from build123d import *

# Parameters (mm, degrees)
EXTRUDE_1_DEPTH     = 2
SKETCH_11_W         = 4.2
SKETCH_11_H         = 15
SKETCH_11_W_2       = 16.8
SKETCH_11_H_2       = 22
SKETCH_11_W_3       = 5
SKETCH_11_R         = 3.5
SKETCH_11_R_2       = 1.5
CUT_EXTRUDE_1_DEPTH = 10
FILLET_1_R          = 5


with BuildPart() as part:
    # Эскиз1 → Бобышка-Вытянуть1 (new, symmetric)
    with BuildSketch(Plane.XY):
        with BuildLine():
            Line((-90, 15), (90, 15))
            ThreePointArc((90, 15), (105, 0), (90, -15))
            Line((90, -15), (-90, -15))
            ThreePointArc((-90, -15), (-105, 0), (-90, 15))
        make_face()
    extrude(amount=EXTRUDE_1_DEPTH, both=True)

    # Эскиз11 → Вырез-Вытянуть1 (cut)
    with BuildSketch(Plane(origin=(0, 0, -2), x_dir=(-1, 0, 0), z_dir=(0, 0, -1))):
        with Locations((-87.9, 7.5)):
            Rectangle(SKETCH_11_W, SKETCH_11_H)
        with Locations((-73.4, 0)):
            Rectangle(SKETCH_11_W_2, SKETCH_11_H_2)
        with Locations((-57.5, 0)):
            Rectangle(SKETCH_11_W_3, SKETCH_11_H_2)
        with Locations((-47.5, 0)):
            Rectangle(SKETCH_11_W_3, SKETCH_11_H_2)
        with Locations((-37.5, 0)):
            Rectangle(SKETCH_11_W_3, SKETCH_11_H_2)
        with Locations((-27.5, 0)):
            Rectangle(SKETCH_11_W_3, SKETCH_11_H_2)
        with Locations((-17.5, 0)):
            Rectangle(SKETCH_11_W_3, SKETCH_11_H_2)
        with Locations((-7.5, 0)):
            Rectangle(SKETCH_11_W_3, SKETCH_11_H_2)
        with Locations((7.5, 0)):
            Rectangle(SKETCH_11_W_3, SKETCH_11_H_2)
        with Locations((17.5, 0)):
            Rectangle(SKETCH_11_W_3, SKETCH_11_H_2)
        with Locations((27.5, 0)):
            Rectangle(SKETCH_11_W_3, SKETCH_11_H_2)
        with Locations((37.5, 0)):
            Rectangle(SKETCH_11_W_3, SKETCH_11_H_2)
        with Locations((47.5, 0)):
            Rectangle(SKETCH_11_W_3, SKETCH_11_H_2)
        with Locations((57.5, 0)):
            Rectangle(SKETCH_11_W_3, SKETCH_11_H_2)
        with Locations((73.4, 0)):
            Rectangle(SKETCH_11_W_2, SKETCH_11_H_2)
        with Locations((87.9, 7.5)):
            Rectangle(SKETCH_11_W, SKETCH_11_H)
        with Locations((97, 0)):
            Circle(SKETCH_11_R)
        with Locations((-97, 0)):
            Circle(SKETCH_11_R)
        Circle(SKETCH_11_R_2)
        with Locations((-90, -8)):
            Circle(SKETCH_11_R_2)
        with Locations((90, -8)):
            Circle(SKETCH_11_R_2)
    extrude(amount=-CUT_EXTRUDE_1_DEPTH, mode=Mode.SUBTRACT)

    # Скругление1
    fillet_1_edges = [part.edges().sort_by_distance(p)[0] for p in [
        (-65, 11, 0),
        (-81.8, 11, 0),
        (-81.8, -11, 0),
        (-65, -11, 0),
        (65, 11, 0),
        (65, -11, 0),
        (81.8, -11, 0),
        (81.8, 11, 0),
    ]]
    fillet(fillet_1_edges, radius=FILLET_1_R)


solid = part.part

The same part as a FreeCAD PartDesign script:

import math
import FreeCAD as App
import Part
import Sketcher
from FreeCAD import Vector


def edges_at(feature, points):
    """Names of the edges that pass closest to the given points."""
    edges = feature.Shape.Edges
    near = lambda p: min(range(len(edges)), key=lambda i: edges[i].distToShape(Part.Vertex(*p))[0])
    return sorted({f"Edge{near(p) + 1}" for p in points})

doc = App.newDocument("Part")
body = doc.addObject("PartDesign::Body", "Body")

# Sketch on XY plane
sketch1 = body.newObject("Sketcher::SketchObject", "Sketch")
sketch1.AttachmentSupport = (doc.getObject("XY_Plane"), [""])
sketch1.MapMode = "FlatFace"
sketch1.addGeometry([
    Part.LineSegment(Vector(90, 15, 0), Vector(-90, 15, 0)),
    Part.ArcOfCircle(Part.Circle(Vector(-90, 0, 0), Vector(0, 0, 1), 15), math.radians(90), math.radians(270)),
    Part.LineSegment(Vector(-90, -15, 0), Vector(90, -15, 0)),
    Part.ArcOfCircle(Part.Circle(Vector(90, 0, 0), Vector(0, 0, 1), 15), math.radians(-90), math.radians(90)),
], False)
sketch1.addConstraint([
    Sketcher.Constraint("Tangent", 0, 2, 1, 1),
    Sketcher.Constraint("Tangent", 1, 2, 2, 1),
    Sketcher.Constraint("Tangent", 2, 2, 3, 1),
    Sketcher.Constraint("Tangent", 3, 2, 0, 1),
    Sketcher.Constraint("Horizontal", 0),
    Sketcher.Constraint("Horizontal", 2),
    Sketcher.Constraint("Symmetric", 1, 3, 3, 3, -1, 1),
    Sketcher.Constraint("Radius", 1, 15.0),
    Sketcher.Constraint("DistanceX", 0, 2, 0, 1, 180.0),
])
pad1 = body.newObject("PartDesign::Pad", "Pad")
pad1.Profile = sketch1
pad1.Length = 4
pad1.Midplane = True

# Sketch on XY plane
sketch2 = body.newObject("Sketcher::SketchObject", "Sketch001")
sketch2.AttachmentSupport = (doc.getObject("XY_Plane"), [""])
sketch2.MapMode = "FlatFace"
sketch2.AttachmentOffset = App.Placement(Vector(0, 0, -2), App.Rotation())
sketch2.addGeometry([
    Part.LineSegment(Vector(90, 15, 0), Vector(90, 0, 0)),  # 0
    Part.LineSegment(Vector(90, 0, 0), Vector(85.8, 0, 0)),  # 1
    Part.LineSegment(Vector(85.8, 0, 0), Vector(85.8, 15, 0)),  # 2
    Part.LineSegment(Vector(85.8, 15, 0), Vector(90, 15, 0)),  # 3
    Part.LineSegment(Vector(81.8, 11, 0), Vector(81.8, -11, 0)),  # 4
    Part.LineSegment(Vector(81.8, -11, 0), Vector(65, -11, 0)),  # 5
    Part.LineSegment(Vector(65, -11, 0), Vector(65, 11, 0)),  # 6
    Part.LineSegment(Vector(65, 11, 0), Vector(81.8, 11, 0)),  # 7
    Part.LineSegment(Vector(60, 11, 0), Vector(60, -11, 0)),  # 8
    Part.LineSegment(Vector(60, -11, 0), Vector(55, -11, 0)),  # 9
    Part.LineSegment(Vector(55, -11, 0), Vector(55, 11, 0)),  # 10
    Part.LineSegment(Vector(55, 11, 0), Vector(60, 11, 0)),  # 11
    Part.LineSegment(Vector(50, 11, 0), Vector(50, -11, 0)),  # 12
    Part.LineSegment(Vector(50, -11, 0), Vector(45, -11, 0)),  # 13
    Part.LineSegment(Vector(45, -11, 0), Vector(45, 11, 0)),  # 14
    Part.LineSegment(Vector(45, 11, 0), Vector(50, 11, 0)),  # 15
    Part.LineSegment(Vector(40, 11, 0), Vector(40, -11, 0)),  # 16
    Part.LineSegment(Vector(40, -11, 0), Vector(35, -11, 0)),  # 17
    Part.LineSegment(Vector(35, -11, 0), Vector(35, 11, 0)),  # 18
    Part.LineSegment(Vector(35, 11, 0), Vector(40, 11, 0)),  # 19
    Part.LineSegment(Vector(30, 11, 0), Vector(30, -11, 0)),  # 20
    Part.LineSegment(Vector(30, -11, 0), Vector(25, -11, 0)),  # 21
    Part.LineSegment(Vector(25, -11, 0), Vector(25, 11, 0)),  # 22
    Part.LineSegment(Vector(25, 11, 0), Vector(30, 11, 0)),  # 23
    Part.LineSegment(Vector(20, 11, 0), Vector(20, -11, 0)),  # 24
    Part.LineSegment(Vector(20, -11, 0), Vector(15, -11, 0)),  # 25
    Part.LineSegment(Vector(15, -11, 0), Vector(15, 11, 0)),  # 26
    Part.LineSegment(Vector(15, 11, 0), Vector(20, 11, 0)),  # 27
    Part.LineSegment(Vector(10, 11, 0), Vector(10, -11, 0)),  # 28
    Part.LineSegment(Vector(10, -11, 0), Vector(5, -11, 0)),  # 29
    Part.LineSegment(Vector(5, -11, 0), Vector(5, 11, 0)),  # 30
    Part.LineSegment(Vector(5, 11, 0), Vector(10, 11, 0)),  # 31
    Part.LineSegment(Vector(-5, 11, 0), Vector(-5, -11, 0)),  # 32
    Part.LineSegment(Vector(-5, -11, 0), Vector(-10, -11, 0)),  # 33
    Part.LineSegment(Vector(-10, -11, 0), Vector(-10, 11, 0)),  # 34
    Part.LineSegment(Vector(-10, 11, 0), Vector(-5, 11, 0)),  # 35
    Part.LineSegment(Vector(-15, 11, 0), Vector(-15, -11, 0)),  # 36
    Part.LineSegment(Vector(-15, -11, 0), Vector(-20, -11, 0)),  # 37
    Part.LineSegment(Vector(-20, -11, 0), Vector(-20, 11, 0)),  # 38
    Part.LineSegment(Vector(-20, 11, 0), Vector(-15, 11, 0)),  # 39
    Part.LineSegment(Vector(-25, 11, 0), Vector(-25, -11, 0)),  # 40
    Part.LineSegment(Vector(-25, -11, 0), Vector(-30, -11, 0)),  # 41
    Part.LineSegment(Vector(-30, -11, 0), Vector(-30, 11, 0)),  # 42
    Part.LineSegment(Vector(-30, 11, 0), Vector(-25, 11, 0)),  # 43
    Part.LineSegment(Vector(-35, 11, 0), Vector(-35, -11, 0)),  # 44
    Part.LineSegment(Vector(-35, -11, 0), Vector(-40, -11, 0)),  # 45
    Part.LineSegment(Vector(-40, -11, 0), Vector(-40, 11, 0)),  # 46
    Part.LineSegment(Vector(-40, 11, 0), Vector(-35, 11, 0)),  # 47
    Part.LineSegment(Vector(-45, 11, 0), Vector(-45, -11, 0)),  # 48
    Part.LineSegment(Vector(-45, -11, 0), Vector(-50, -11, 0)),  # 49
    Part.LineSegment(Vector(-50, -11, 0), Vector(-50, 11, 0)),  # 50
    Part.LineSegment(Vector(-50, 11, 0), Vector(-45, 11, 0)),  # 51
    Part.LineSegment(Vector(-55, 11, 0), Vector(-55, -11, 0)),  # 52
    Part.LineSegment(Vector(-55, -11, 0), Vector(-60, -11, 0)),  # 53
    Part.LineSegment(Vector(-60, -11, 0), Vector(-60, 11, 0)),  # 54
    Part.LineSegment(Vector(-60, 11, 0), Vector(-55, 11, 0)),  # 55
    Part.LineSegment(Vector(-65, 11, 0), Vector(-65, -11, 0)),  # 56
    Part.LineSegment(Vector(-65, -11, 0), Vector(-81.8, -11, 0)),  # 57
    Part.LineSegment(Vector(-81.8, -11, 0), Vector(-81.8, 11, 0)),  # 58
    Part.LineSegment(Vector(-81.8, 11, 0), Vector(-65, 11, 0)),  # 59
    Part.LineSegment(Vector(-85.8, 15, 0), Vector(-85.8, 0, 0)),  # 60
    Part.LineSegment(Vector(-85.8, 0, 0), Vector(-90, 0, 0)),  # 61
    Part.LineSegment(Vector(-90, 0, 0), Vector(-90, 15, 0)),  # 62
    Part.LineSegment(Vector(-90, 15, 0), Vector(-85.8, 15, 0)),  # 63
    Part.Circle(Vector(-97, 0, 0), Vector(0, 0, 1), 3.5),  # 64
    Part.Circle(Vector(97, 0, 0), Vector(0, 0, 1), 3.5),  # 65
    Part.Circle(Vector(0, 0, 0), Vector(0, 0, 1), 1.5),  # 66
    Part.Circle(Vector(90, -8, 0), Vector(0, 0, 1), 1.5),  # 67
    Part.Circle(Vector(-90, -8, 0), Vector(0, 0, 1), 1.5),  # 68
], False)
sketch2.addConstraint([
    Sketcher.Constraint("Coincident", 0, 2, 1, 1),
    Sketcher.Constraint("Coincident", 1, 2, 2, 1),
    Sketcher.Constraint("Coincident", 2, 2, 3, 1),
    Sketcher.Constraint("Coincident", 3, 2, 0, 1),
    Sketcher.Constraint("Coincident", 4, 2, 5, 1),
    Sketcher.Constraint("Coincident", 5, 2, 6, 1),
    Sketcher.Constraint("Coincident", 6, 2, 7, 1),
    Sketcher.Constraint("Coincident", 7, 2, 4, 1),
    Sketcher.Constraint("Coincident", 8, 2, 9, 1),
    Sketcher.Constraint("Coincident", 9, 2, 10, 1),
    Sketcher.Constraint("Coincident", 10, 2, 11, 1),
    Sketcher.Constraint("Coincident", 11, 2, 8, 1),
    Sketcher.Constraint("Coincident", 12, 2, 13, 1),
    Sketcher.Constraint("Coincident", 13, 2, 14, 1),
    Sketcher.Constraint("Coincident", 14, 2, 15, 1),
    Sketcher.Constraint("Coincident", 15, 2, 12, 1),
    Sketcher.Constraint("Coincident", 16, 2, 17, 1),
    Sketcher.Constraint("Coincident", 17, 2, 18, 1),
    Sketcher.Constraint("Coincident", 18, 2, 19, 1),
    Sketcher.Constraint("Coincident", 19, 2, 16, 1),
    Sketcher.Constraint("Coincident", 20, 2, 21, 1),
    Sketcher.Constraint("Coincident", 21, 2, 22, 1),
    Sketcher.Constraint("Coincident", 22, 2, 23, 1),
    Sketcher.Constraint("Coincident", 23, 2, 20, 1),
    Sketcher.Constraint("Coincident", 24, 2, 25, 1),
    Sketcher.Constraint("Coincident", 25, 2, 26, 1),
    Sketcher.Constraint("Coincident", 26, 2, 27, 1),
    Sketcher.Constraint("Coincident", 27, 2, 24, 1),
    Sketcher.Constraint("Coincident", 28, 2, 29, 1),
    Sketcher.Constraint("Coincident", 29, 2, 30, 1),
    Sketcher.Constraint("Coincident", 30, 2, 31, 1),
    Sketcher.Constraint("Coincident", 31, 2, 28, 1),
    Sketcher.Constraint("Coincident", 32, 2, 33, 1),
    Sketcher.Constraint("Coincident", 33, 2, 34, 1),
    Sketcher.Constraint("Coincident", 34, 2, 35, 1),
    Sketcher.Constraint("Coincident", 35, 2, 32, 1),
    Sketcher.Constraint("Coincident", 36, 2, 37, 1),
    Sketcher.Constraint("Coincident", 37, 2, 38, 1),
    Sketcher.Constraint("Coincident", 38, 2, 39, 1),
    Sketcher.Constraint("Coincident", 39, 2, 36, 1),
    Sketcher.Constraint("Coincident", 40, 2, 41, 1),
    Sketcher.Constraint("Coincident", 41, 2, 42, 1),
    Sketcher.Constraint("Coincident", 42, 2, 43, 1),
    Sketcher.Constraint("Coincident", 43, 2, 40, 1),
    Sketcher.Constraint("Coincident", 44, 2, 45, 1),
    Sketcher.Constraint("Coincident", 45, 2, 46, 1),
    Sketcher.Constraint("Coincident", 46, 2, 47, 1),
    Sketcher.Constraint("Coincident", 47, 2, 44, 1),
    Sketcher.Constraint("Coincident", 48, 2, 49, 1),
    Sketcher.Constraint("Coincident", 49, 2, 50, 1),
    Sketcher.Constraint("Coincident", 50, 2, 51, 1),
    Sketcher.Constraint("Coincident", 51, 2, 48, 1),
    Sketcher.Constraint("Coincident", 52, 2, 53, 1),
    Sketcher.Constraint("Coincident", 53, 2, 54, 1),
    Sketcher.Constraint("Coincident", 54, 2, 55, 1),
    Sketcher.Constraint("Coincident", 55, 2, 52, 1),
    Sketcher.Constraint("Coincident", 56, 2, 57, 1),
    Sketcher.Constraint("Coincident", 57, 2, 58, 1),
    Sketcher.Constraint("Coincident", 58, 2, 59, 1),
    Sketcher.Constraint("Coincident", 59, 2, 56, 1),
    Sketcher.Constraint("Coincident", 60, 2, 61, 1),
    Sketcher.Constraint("Coincident", 61, 2, 62, 1),
    Sketcher.Constraint("Coincident", 62, 2, 63, 1),
    Sketcher.Constraint("Coincident", 63, 2, 60, 1),
    Sketcher.Constraint("Vertical", 0),
    Sketcher.Constraint("Horizontal", 1),
    Sketcher.Constraint("Vertical", 2),
    Sketcher.Constraint("Horizontal", 3),
    Sketcher.Constraint("Vertical", 4),
    Sketcher.Constraint("Horizontal", 5),
    Sketcher.Constraint("Vertical", 6),
    Sketcher.Constraint("Horizontal", 7),
    Sketcher.Constraint("Vertical", 8),
    Sketcher.Constraint("Horizontal", 9),
    Sketcher.Constraint("Vertical", 10),
    Sketcher.Constraint("Horizontal", 11),
    Sketcher.Constraint("Vertical", 12),
    Sketcher.Constraint("Horizontal", 13),
    Sketcher.Constraint("Vertical", 14),
    Sketcher.Constraint("Horizontal", 15),
    Sketcher.Constraint("Vertical", 16),
    Sketcher.Constraint("Horizontal", 17),
    Sketcher.Constraint("Vertical", 18),
    Sketcher.Constraint("Horizontal", 19),
    Sketcher.Constraint("Vertical", 20),
    Sketcher.Constraint("Horizontal", 21),
    Sketcher.Constraint("Vertical", 22),
    Sketcher.Constraint("Horizontal", 23),
    Sketcher.Constraint("Vertical", 24),
    Sketcher.Constraint("Horizontal", 25),
    Sketcher.Constraint("Vertical", 26),
    Sketcher.Constraint("Horizontal", 27),
    Sketcher.Constraint("Vertical", 28),
    Sketcher.Constraint("Horizontal", 29),
    Sketcher.Constraint("Vertical", 30),
    Sketcher.Constraint("Horizontal", 31),
    Sketcher.Constraint("Vertical", 32),
    Sketcher.Constraint("Horizontal", 33),
    Sketcher.Constraint("Vertical", 34),
    Sketcher.Constraint("Horizontal", 35),
    Sketcher.Constraint("Vertical", 36),
    Sketcher.Constraint("Horizontal", 37),
    Sketcher.Constraint("Vertical", 38),
    Sketcher.Constraint("Horizontal", 39),
    Sketcher.Constraint("Vertical", 40),
    Sketcher.Constraint("Horizontal", 41),
    Sketcher.Constraint("Vertical", 42),
    Sketcher.Constraint("Horizontal", 43),
    Sketcher.Constraint("Vertical", 44),
    Sketcher.Constraint("Horizontal", 45),
    Sketcher.Constraint("Vertical", 46),
    Sketcher.Constraint("Horizontal", 47),
    Sketcher.Constraint("Vertical", 48),
    Sketcher.Constraint("Horizontal", 49),
    Sketcher.Constraint("Vertical", 50),
    Sketcher.Constraint("Horizontal", 51),
    Sketcher.Constraint("Vertical", 52),
    Sketcher.Constraint("Horizontal", 53),
    Sketcher.Constraint("Vertical", 54),
    Sketcher.Constraint("Horizontal", 55),
    Sketcher.Constraint("Vertical", 56),
    Sketcher.Constraint("Horizontal", 57),
    Sketcher.Constraint("Vertical", 58),
    Sketcher.Constraint("Horizontal", 59),
    Sketcher.Constraint("Vertical", 60),
    Sketcher.Constraint("Horizontal", 61),
    Sketcher.Constraint("Vertical", 62),
    Sketcher.Constraint("Horizontal", 63),
    Sketcher.Constraint("Coincident", 66, 3, -1, 1),
    Sketcher.Constraint("Equal", 64, 65),
    Sketcher.Constraint("Equal", 66, 67),
    Sketcher.Constraint("Equal", 67, 68),
    Sketcher.Constraint("Symmetric", 64, 3, 65, 3, -1, 1),
    Sketcher.Constraint("Symmetric", 30, 2, 32, 2, -1, 1),
    Sketcher.Constraint("Symmetric", 28, 2, 34, 2, -1, 1),
    Sketcher.Constraint("Symmetric", 26, 2, 36, 2, -1, 1),
    Sketcher.Constraint("Symmetric", 24, 2, 38, 2, -1, 1),
    Sketcher.Constraint("Symmetric", 22, 2, 40, 2, -1, 1),
    Sketcher.Constraint("Symmetric", 20, 2, 42, 2, -1, 1),
    Sketcher.Constraint("Symmetric", 18, 2, 44, 2, -1, 1),
    Sketcher.Constraint("Symmetric", 16, 2, 46, 2, -1, 1),
    Sketcher.Constraint("Symmetric", 14, 2, 48, 2, -1, 1),
    Sketcher.Constraint("Symmetric", 12, 2, 50, 2, -1, 1),
    Sketcher.Constraint("Symmetric", 10, 2, 52, 2, -1, 1),
    Sketcher.Constraint("Symmetric", 8, 2, 54, 2, -1, 1),
    Sketcher.Constraint("Symmetric", 6, 2, 56, 2, -1, 1),
    Sketcher.Constraint("Symmetric", 4, 2, 58, 2, -1, 1),
    Sketcher.Constraint("Symmetric", 1, 2, 60, 2, -1, 1),
    Sketcher.Constraint("Symmetric", 67, 3, 68, 3, -2),
    Sketcher.Constraint("Symmetric", 0, 2, 61, 2, -2),
    Sketcher.Constraint("PointOnObject", 64, 3, -1),
    Sketcher.Constraint("Horizontal", 5, 2, 8, 2),
    Sketcher.Constraint("Horizontal", 7, 2, 10, 2),
    Sketcher.Constraint("Horizontal", 9, 2, 12, 2),
    Sketcher.Constraint("Horizontal", 11, 2, 14, 2),
    Sketcher.Constraint("Horizontal", 13, 2, 16, 2),
    Sketcher.Constraint("Horizontal", 15, 2, 18, 2),
    Sketcher.Constraint("Horizontal", 17, 2, 20, 2),
    Sketcher.Constraint("Horizontal", 19, 2, 22, 2),
    Sketcher.Constraint("Horizontal", 21, 2, 24, 2),
    Sketcher.Constraint("Horizontal", 23, 2, 26, 2),
    Sketcher.Constraint("Horizontal", 25, 2, 28, 2),
    Sketcher.Constraint("Horizontal", 27, 2, 30, 2),
    Sketcher.Constraint("Horizontal", 29, 2, 32, 2),
    Sketcher.Constraint("Horizontal", 3, 2, 62, 2),
    Sketcher.Constraint("Vertical", 67, 3, 0, 2),
    Sketcher.Constraint("Equal", 11, 13),
    Sketcher.Constraint("Equal", 15, 17),
    Sketcher.Constraint("Equal", 19, 21),
    Sketcher.Constraint("Equal", 23, 25),
    Sketcher.Constraint("Equal", 27, 29),
    Sketcher.Constraint("Diameter", 64, 7.0),
    Sketcher.Constraint("Diameter", 66, 3.0),
    Sketcher.Constraint("DistanceX", 9, 2, 9, 1, 5.0),
    Sketcher.Constraint("DistanceY", 0, 2, 0, 1, 15.0),
    Sketcher.Constraint("DistanceY", 4, 2, 4, 1, 22.0),
    Sketcher.Constraint("DistanceX", 1, 2, 1, 1, 4.2),
    Sketcher.Constraint("DistanceX", 5, 2, 5, 1, 16.8),
    Sketcher.Constraint("DistanceX", 64, 3, -1, 1, 97.0),
    Sketcher.Constraint("DistanceX", -1, 1, 67, 3, 90.0),
    Sketcher.Constraint("DistanceY", 67, 3, -1, 1, 8.0),
    Sketcher.Constraint("DistanceX", -1, 1, 5, 2, 65.0),
    Sketcher.Constraint("DistanceX", -1, 1, 8, 2, 60.0),
    Sketcher.Constraint("DistanceX", -1, 1, 12, 2, 50.0),
    Sketcher.Constraint("DistanceX", -1, 1, 16, 2, 40.0),
    Sketcher.Constraint("DistanceX", -1, 1, 20, 2, 30.0),
    Sketcher.Constraint("DistanceX", -1, 1, 24, 2, 20.0),
    Sketcher.Constraint("DistanceX", -1, 1, 28, 2, 10.0),
])
pocket1 = body.newObject("PartDesign::Pocket", "Pocket")
pocket1.Profile = sketch2
pocket1.Length = 10
pocket1.Reversed = True
doc.recompute()

fillet = body.newObject("PartDesign::Fillet", "Fillet")
fillet.Base = (pocket1, edges_at(pocket1, [
    (-65, 11, 0),
    (-81.8, 11, 0),
    (-81.8, -11, 0),
    (-65, -11, 0),
    (65, 11, 0),
    (65, -11, 0),
    (81.8, -11, 0),
    (81.8, 11, 0),
]))
fillet.Radius = 5

doc.recompute()
